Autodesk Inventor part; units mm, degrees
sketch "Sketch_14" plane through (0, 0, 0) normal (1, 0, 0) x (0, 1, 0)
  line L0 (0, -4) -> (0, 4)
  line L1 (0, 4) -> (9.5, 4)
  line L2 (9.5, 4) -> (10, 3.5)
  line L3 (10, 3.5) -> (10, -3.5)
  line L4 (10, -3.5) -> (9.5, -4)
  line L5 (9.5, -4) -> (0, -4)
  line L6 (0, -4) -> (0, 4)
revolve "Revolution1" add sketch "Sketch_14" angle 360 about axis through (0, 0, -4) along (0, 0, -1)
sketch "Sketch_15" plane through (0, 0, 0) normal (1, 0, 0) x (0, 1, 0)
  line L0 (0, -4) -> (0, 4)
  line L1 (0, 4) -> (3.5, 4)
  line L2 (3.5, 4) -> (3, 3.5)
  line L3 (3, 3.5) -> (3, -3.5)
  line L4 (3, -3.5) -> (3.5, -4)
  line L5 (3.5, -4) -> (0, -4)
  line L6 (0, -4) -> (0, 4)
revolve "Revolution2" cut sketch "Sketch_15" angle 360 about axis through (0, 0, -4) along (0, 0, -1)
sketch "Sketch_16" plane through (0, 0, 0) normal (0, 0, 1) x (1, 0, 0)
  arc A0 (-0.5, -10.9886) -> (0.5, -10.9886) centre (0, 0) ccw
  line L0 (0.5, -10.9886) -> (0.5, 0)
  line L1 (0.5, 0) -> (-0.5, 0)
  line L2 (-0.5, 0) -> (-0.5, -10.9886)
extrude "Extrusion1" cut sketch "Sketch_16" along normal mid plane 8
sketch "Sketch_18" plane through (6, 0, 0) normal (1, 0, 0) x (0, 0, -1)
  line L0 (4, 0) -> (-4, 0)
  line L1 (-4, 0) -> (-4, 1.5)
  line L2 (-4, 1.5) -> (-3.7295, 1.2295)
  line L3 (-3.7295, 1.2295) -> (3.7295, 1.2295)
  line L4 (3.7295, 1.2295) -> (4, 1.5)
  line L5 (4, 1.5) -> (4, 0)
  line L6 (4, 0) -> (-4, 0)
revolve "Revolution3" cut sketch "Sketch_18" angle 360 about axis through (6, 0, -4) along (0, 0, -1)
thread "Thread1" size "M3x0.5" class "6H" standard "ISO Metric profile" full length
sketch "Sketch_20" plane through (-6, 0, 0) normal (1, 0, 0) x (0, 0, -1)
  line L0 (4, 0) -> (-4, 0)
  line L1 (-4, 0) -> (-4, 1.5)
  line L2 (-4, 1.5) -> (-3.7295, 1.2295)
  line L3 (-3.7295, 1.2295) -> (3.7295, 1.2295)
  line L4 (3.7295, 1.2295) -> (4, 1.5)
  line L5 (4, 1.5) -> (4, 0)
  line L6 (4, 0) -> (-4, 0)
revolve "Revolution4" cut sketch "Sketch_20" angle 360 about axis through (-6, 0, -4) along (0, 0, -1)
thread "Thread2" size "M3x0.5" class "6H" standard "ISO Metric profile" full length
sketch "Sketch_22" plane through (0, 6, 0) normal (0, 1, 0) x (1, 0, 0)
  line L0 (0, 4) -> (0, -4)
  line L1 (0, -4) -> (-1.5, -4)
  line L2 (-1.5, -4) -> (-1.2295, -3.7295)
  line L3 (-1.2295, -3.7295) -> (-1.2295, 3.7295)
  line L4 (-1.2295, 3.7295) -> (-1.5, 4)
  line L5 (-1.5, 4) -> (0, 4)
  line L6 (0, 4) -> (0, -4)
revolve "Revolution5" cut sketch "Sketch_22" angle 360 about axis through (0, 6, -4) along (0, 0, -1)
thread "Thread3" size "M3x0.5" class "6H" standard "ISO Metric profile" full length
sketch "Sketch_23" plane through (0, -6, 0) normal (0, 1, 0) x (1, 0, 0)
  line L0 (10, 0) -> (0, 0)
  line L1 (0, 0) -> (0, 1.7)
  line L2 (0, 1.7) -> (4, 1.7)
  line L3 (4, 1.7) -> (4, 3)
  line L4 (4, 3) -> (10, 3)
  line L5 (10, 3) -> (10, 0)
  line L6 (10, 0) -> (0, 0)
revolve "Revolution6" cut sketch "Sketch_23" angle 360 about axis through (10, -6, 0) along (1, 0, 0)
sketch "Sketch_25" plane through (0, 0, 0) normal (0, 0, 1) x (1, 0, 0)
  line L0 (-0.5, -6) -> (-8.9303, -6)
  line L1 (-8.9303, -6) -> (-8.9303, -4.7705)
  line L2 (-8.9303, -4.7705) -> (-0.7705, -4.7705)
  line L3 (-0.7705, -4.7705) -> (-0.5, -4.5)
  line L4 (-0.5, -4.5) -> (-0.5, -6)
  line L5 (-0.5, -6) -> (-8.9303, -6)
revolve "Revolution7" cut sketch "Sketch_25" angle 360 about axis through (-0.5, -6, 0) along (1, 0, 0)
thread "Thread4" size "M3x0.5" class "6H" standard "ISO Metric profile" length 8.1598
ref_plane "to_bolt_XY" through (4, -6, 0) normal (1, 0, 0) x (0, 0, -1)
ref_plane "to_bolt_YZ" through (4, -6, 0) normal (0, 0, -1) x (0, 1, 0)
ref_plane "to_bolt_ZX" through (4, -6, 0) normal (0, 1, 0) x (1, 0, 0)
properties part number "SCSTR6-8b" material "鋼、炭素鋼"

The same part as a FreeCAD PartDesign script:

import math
import FreeCAD as App
import Part
import Sketcher

V = App.Vector
Q = App.Units.Quantity


def add_polygon(sketch, points):
    """Adds a closed chain of lines whose ends are joined by coincident constraints."""
    first, n = sketch.GeometryCount, len(points)
    for a, b in zip(points, points[1:] + points[:1]):
        sketch.addGeometry(Part.LineSegment(App.Vector(*a, 0), App.Vector(*b, 0)), False)
    for i in range(n):
        sketch.addConstraint(Sketcher.Constraint("Coincident", first + i, 2, first + (i + 1) % n, 1))

doc = App.newDocument("Part")
body = doc.addObject("PartDesign::Body", "Body")

# Sketch on YZ plane
sketch1 = body.newObject("Sketcher::SketchObject", "Sketch")
sketch1.AttachmentSupport = (doc.getObject("YZ_Plane"), [""])
sketch1.MapMode = "FlatFace"
add_polygon(sketch1, [(0, 4), (0, -4), (9.5, -4), (10, -3.5), (10, 3.5), (9.5, 4)])  # lines 0-5
sketch1.addConstraint([
    Sketcher.Constraint("Vertical", 0),
    Sketcher.Constraint("Horizontal", 1),
    Sketcher.Constraint("Vertical", 3),
    Sketcher.Constraint("Horizontal", 5),
    Sketcher.Constraint("Symmetric", 0, 2, 5, 2, -1, 1),
    Sketcher.Constraint("Perpendicular", 2, 4),
    Sketcher.Constraint("Vertical", 1, 2, 4, 2),
    Sketcher.Constraint("Equal", 2, 4),
    Sketcher.Constraint("DistanceY", 0, 2, 0, 1, 8.0),
    Sketcher.Constraint("DistanceY", 3, 1, 3, 2, 7.0),
    Sketcher.Constraint("DistanceX", 1, 1, 1, 2, 9.5),
])
revolution = body.newObject("PartDesign::Revolution", "Revolution")
revolution.Profile = sketch1
revolution.ReferenceAxis = (sketch1, ["V_Axis"])
revolution.Angle = 360

# Sketch on YZ plane
sketch2 = body.newObject("Sketcher::SketchObject", "Sketch001")
sketch2.AttachmentSupport = (doc.getObject("YZ_Plane"), [""])
sketch2.MapMode = "FlatFace"
add_polygon(sketch2, [(0, 4), (0, -4), (3.5, -4), (3, -3.5), (3, 3.5), (3.5, 4)])  # lines 0-5
sketch2.addConstraint([
    Sketcher.Constraint("Vertical", 0),
    Sketcher.Constraint("Horizontal", 1),
    Sketcher.Constraint("Vertical", 3),
    Sketcher.Constraint("Horizontal", 5),
    Sketcher.Constraint("Symmetric", 0, 2, 5, 2, -1, 1),
    Sketcher.Constraint("Perpendicular", 2, 4),
    Sketcher.Constraint("Vertical", 1, 2, 4, 2),
    Sketcher.Constraint("Equal", 2, 4),
    Sketcher.Constraint("DistanceY", 0, 2, 0, 1, 8.0),
    Sketcher.Constraint("DistanceY", 3, 1, 3, 2, 7.0),
    Sketcher.Constraint("DistanceX", 1, 1, 1, 2, 3.5),
])
groove = body.newObject("PartDesign::Groove", "Groove")
groove.Profile = sketch2
groove.ReferenceAxis = (sketch2, ["V_Axis"])
groove.Angle = 360

# Sketch on XY plane
sketch3 = body.newObject("Sketcher::SketchObject", "Sketch002")
sketch3.AttachmentSupport = (doc.getObject("XY_Plane"), [""])
sketch3.MapMode = "FlatFace"
sketch3.addGeometry([
    Part.LineSegment(V(-0.5, 0, 0), V(-0.5, -11, 0)),
    Part.ArcOfCircle(Part.Circle(V(0, 0, 0), V(0, 0, 1), 11), math.radians(-92.61), math.radians(-87.39)),
    Part.LineSegment(V(0.5, -11, 0), V(0.5, 0, 0)),
    Part.LineSegment(V(0.5, 0, 0), V(-0.5, 0, 0)),
], False)
sketch3.addConstraint([
    Sketcher.Constraint("Coincident", 0, 2, 1, 1),
    Sketcher.Constraint("Coincident", 1, 2, 2, 1),
    Sketcher.Constraint("Coincident", 2, 2, 3, 1),
    Sketcher.Constraint("Coincident", 3, 2, 0, 1),
    Sketcher.Constraint("Vertical", 0),
    Sketcher.Constraint("Vertical", 2),
    Sketcher.Constraint("Horizontal", 3),
    Sketcher.Constraint("Coincident", 1, 3, -1, 1),
    Sketcher.Constraint("Symmetric", 2, 2, 3, 2, -1, 1),
    Sketcher.Constraint("Radius", 1, 11.0),
    Sketcher.Constraint("DistanceX", 3, 2, 3, 1, 1.0),
])
pocket1 = body.newObject("PartDesign::Pocket", "Pocket")
pocket1.Profile = sketch3
pocket1.Length = 8
pocket1.Midplane = True

# Sketch on YZ plane
sketch4 = body.newObject("Sketcher::SketchObject", "Sketch003")
sketch4.AttachmentSupport = (doc.getObject("YZ_Plane"), [""])
sketch4.MapMode = "FlatFace"
sketch4.AttachmentOffset = App.Placement(V(0, 0, 6), App.Rotation())
add_polygon(sketch4, [(0, 4), (0, -4), (1.5, -4), (1.23, -3.73), (1.23, 3.73), (1.5, 4)])  # lines 0-5
sketch4.addConstraint([
    Sketcher.Constraint("Vertical", 0),
    Sketcher.Constraint("Horizontal", 1),
    Sketcher.Constraint("Vertical", 3),
    Sketcher.Constraint("Horizontal", 5),
    Sketcher.Constraint("Symmetric", 0, 2, 5, 2, -1, 1),
    Sketcher.Constraint("Perpendicular", 2, 4),
    Sketcher.Constraint("Vertical", 1, 2, 4, 2),
    Sketcher.Constraint("Equal", 2, 4),
    Sketcher.Constraint("DistanceY", 0, 2, 0, 1, 8.0),
    Sketcher.Constraint("DistanceX", 1, 1, 1, 2, 1.5),
    Sketcher.Constraint("DistanceY", 3, 1, 3, 2, 7.459),
])
groove2 = body.newObject("PartDesign::Groove", "Groove001")
groove2.Profile = sketch4
groove2.ReferenceAxis = (sketch4, ["V_Axis"])
groove2.Angle = 360

# Sketch on YZ plane
sketch5 = body.newObject("Sketcher::SketchObject", "Sketch004")
sketch5.AttachmentSupport = (doc.getObject("YZ_Plane"), [""])
sketch5.MapMode = "FlatFace"
sketch5.AttachmentOffset = App.Placement(V(0, 0, -6), App.Rotation())
add_polygon(sketch5, [(0, 4), (0, -4), (1.5, -4), (1.23, -3.73), (1.23, 3.73), (1.5, 4)])  # lines 0-5
sketch5.addConstraint([
    Sketcher.Constraint("Vertical", 0),
    Sketcher.Constraint("Horizontal", 1),
    Sketcher.Constraint("Vertical", 3),
    Sketcher.Constraint("Horizontal", 5),
    Sketcher.Constraint("Symmetric", 0, 2, 5, 2, -1, 1),
    Sketcher.Constraint("Perpendicular", 2, 4),
    Sketcher.Constraint("Vertical", 1, 2, 4, 2),
    Sketcher.Constraint("Equal", 2, 4),
    Sketcher.Constraint("DistanceY", 0, 2, 0, 1, 8.0),
    Sketcher.Constraint("DistanceX", 1, 1, 1, 2, 1.5),
    Sketcher.Constraint("DistanceY", 3, 1, 3, 2, 7.459),
])
groove3 = body.newObject("PartDesign::Groove", "Groove002")
groove3.Profile = sketch5
groove3.ReferenceAxis = (sketch5, ["V_Axis"])
groove3.Angle = 360

# Sketch on XZ plane
sketch6 = body.newObject("Sketcher::SketchObject", "Sketch005")
sketch6.AttachmentSupport = (doc.getObject("XZ_Plane"), [""])
sketch6.MapMode = "FlatFace"
sketch6.AttachmentOffset = App.Placement(V(0, 0, -6), App.Rotation())
add_polygon(sketch6, [(0, 4), (0, -4), (-1.5, -4), (-1.23, -3.73), (-1.23, 3.73), (-1.5, 4)])  # lines 0-5
sketch6.addConstraint([
    Sketcher.Constraint("Vertical", 0),
    Sketcher.Constraint("Horizontal", 1),
    Sketcher.Constraint("Vertical", 3),
    Sketcher.Constraint("Horizontal", 5),
    Sketcher.Constraint("Symmetric", 0, 2, 5, 2, -1, 1),
    Sketcher.Constraint("Perpendicular", 2, 4),
    Sketcher.Constraint("Vertical", 1, 2, 4, 2),
    Sketcher.Constraint("Equal", 2, 4),
    Sketcher.Constraint("DistanceY", 0, 2, 0, 1, 8.0),
    Sketcher.Constraint("DistanceX", 1, 2, 1, 1, 1.5),
    Sketcher.Constraint("DistanceY", 3, 1, 3, 2, 7.459),
])
groove4 = body.newObject("PartDesign::Groove", "Groove003")
groove4.Profile = sketch6
groove4.ReferenceAxis = (sketch6, ["V_Axis"])
groove4.Angle = 360

# Sketch on XZ plane
sketch7 = body.newObject("Sketcher::SketchObject", "Sketch006")
sketch7.AttachmentSupport = (doc.getObject("XZ_Plane"), [""])
sketch7.MapMode = "FlatFace"
sketch7.AttachmentOffset = App.Placement(V(0, 0, 6), App.Rotation())
add_polygon(sketch7, [(0, 0), (10, 0), (10, -3), (4, -3), (4, -1.7), (0, -1.7)])  # lines 0-5
sketch7.addConstraint([
    Sketcher.Constraint("Horizontal", 0),
    Sketcher.Constraint("Vertical", 1),
    Sketcher.Constraint("Horizontal", 2),
    Sketcher.Constraint("Vertical", 3),
    Sketcher.Constraint("Horizontal", 4),
    Sketcher.Constraint("Vertical", 5),
    Sketcher.Constraint("Coincident", 5, 2, -1, 1),
    Sketcher.Constraint("DistanceX", 0, 1, 0, 2, 10.0),
    Sketcher.Constraint("DistanceX", 2, 2, 2, 1, 6.0),
    Sketcher.Constraint("DistanceY", 1, 2, 1, 1, 3.0),
    Sketcher.Constraint("DistanceY", 3, 1, 3, 2, 1.3),
])
groove5 = body.newObject("PartDesign::Groove", "Groove004")
groove5.Profile = sketch7
groove5.ReferenceAxis = (sketch7, ["H_Axis"])
groove5.Angle = 360

# Sketch on XY plane
sketch8 = body.newObject("Sketcher::SketchObject", "Sketch007")
sketch8.AttachmentSupport = (doc.getObject("XY_Plane"), [""])
sketch8.MapMode = "FlatFace"
add_polygon(sketch8, [(-8.93, -6), (-0.5, -6), (-0.5, -4.5), (-0.77, -4.77), (-8.93, -4.77)])  # lines 0-4
sketch8.addGeometry(Part.LineSegment(V(-8.93, -6, 0), V(-0.5, -6, 0)), True)  # axis
sketch8.addConstraint([
    Sketcher.Constraint("Horizontal", 0),
    Sketcher.Constraint("Vertical", 1),
    Sketcher.Constraint("Horizontal", 3),
    Sketcher.Constraint("Vertical", 4),
    Sketcher.Constraint("Horizontal", 5),
    Sketcher.Constraint("Coincident", 5, 1, 4, 2),
    Sketcher.Constraint("Vertical", 1, 2, 5, 2),
    Sketcher.Constraint("Angle", 2, Q("-135 deg")),
    Sketcher.Constraint("DistanceY", 1, 1, 1, 2, 1.5),
    Sketcher.Constraint("DistanceY", 0, 2, -1, 1, 6.0),
    Sketcher.Constraint("DistanceX", 0, 2, -1, 1, 0.5),
    Sketcher.Constraint("DistanceX", 0, 1, 0, 2, 8.4303),
    Sketcher.Constraint("DistanceX", 3, 2, 3, 1, 8.1598),
])
groove6 = body.newObject("PartDesign::Groove", "Groove005")
groove6.Profile = sketch8
groove6.ReferenceAxis = (sketch8, ["Axis0"])
groove6.Angle = 360

doc.recompute()
